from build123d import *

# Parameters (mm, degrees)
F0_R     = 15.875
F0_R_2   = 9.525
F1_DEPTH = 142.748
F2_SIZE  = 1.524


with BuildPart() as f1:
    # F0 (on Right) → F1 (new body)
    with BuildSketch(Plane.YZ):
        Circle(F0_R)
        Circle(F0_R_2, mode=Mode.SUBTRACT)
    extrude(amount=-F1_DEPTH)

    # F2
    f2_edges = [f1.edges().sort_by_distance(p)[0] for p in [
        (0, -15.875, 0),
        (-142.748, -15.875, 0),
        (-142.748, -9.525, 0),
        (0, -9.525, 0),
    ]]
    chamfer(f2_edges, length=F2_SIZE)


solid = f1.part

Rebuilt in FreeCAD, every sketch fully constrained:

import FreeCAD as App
import Part
import Sketcher
Q = App.Units.Quantity


def edges_at(feature, points):
    """Names of the edges that pass closest to the given points."""
    edges = feature.Shape.Edges
    near = lambda p: min(range(len(edges)), key=lambda i: edges[i].distToShape(Part.Vertex(*p))[0])
    return sorted({f"Edge{near(p) + 1}" for p in points})

doc = App.newDocument("Part")
body = doc.addObject("PartDesign::Body", "Body")

# Sketch on YZ plane
sketch1 = body.newObject("Sketcher::SketchObject", "Sketch")
sketch1.AttachmentSupport = (doc.getObject("YZ_Plane"), [""])
sketch1.MapMode = "FlatFace"
sketch1.addGeometry(Part.Circle(App.Vector(0, 0, 0), App.Vector(0, 0, 1), 16), False)
sketch1.addGeometry(Part.Circle(App.Vector(0, 0, 0), App.Vector(0, 0, 1), 10), False)
sketch1.addConstraint(Sketcher.Constraint("Coincident", 0, 3, -1, 1))
sketch1.addConstraint(Sketcher.Constraint("Coincident", 1, 3, -1, 1))
sketch1.addConstraint(Sketcher.Constraint("Diameter", 0, Q("1.25 in")))
sketch1.addConstraint(Sketcher.Constraint("Diameter", 1, Q("0.75 in")))
pad1 = body.newObject("PartDesign::Pad", "Pad")
pad1.Profile = sketch1
pad1.Length = Q("5.62 in")
pad1.Reversed = True
doc.recompute()

chamfer = body.newObject("PartDesign::Chamfer", "Chamfer")
chamfer.Base = (pad1, edges_at(pad1, [
    (0, -15.875, 0),
    (-142.748, -15.875, 0),
    (-142.748, -9.525, 0),
    (0, -9.525, 0),
]))
chamfer.Size = Q("0.06 in")

doc.recompute()
